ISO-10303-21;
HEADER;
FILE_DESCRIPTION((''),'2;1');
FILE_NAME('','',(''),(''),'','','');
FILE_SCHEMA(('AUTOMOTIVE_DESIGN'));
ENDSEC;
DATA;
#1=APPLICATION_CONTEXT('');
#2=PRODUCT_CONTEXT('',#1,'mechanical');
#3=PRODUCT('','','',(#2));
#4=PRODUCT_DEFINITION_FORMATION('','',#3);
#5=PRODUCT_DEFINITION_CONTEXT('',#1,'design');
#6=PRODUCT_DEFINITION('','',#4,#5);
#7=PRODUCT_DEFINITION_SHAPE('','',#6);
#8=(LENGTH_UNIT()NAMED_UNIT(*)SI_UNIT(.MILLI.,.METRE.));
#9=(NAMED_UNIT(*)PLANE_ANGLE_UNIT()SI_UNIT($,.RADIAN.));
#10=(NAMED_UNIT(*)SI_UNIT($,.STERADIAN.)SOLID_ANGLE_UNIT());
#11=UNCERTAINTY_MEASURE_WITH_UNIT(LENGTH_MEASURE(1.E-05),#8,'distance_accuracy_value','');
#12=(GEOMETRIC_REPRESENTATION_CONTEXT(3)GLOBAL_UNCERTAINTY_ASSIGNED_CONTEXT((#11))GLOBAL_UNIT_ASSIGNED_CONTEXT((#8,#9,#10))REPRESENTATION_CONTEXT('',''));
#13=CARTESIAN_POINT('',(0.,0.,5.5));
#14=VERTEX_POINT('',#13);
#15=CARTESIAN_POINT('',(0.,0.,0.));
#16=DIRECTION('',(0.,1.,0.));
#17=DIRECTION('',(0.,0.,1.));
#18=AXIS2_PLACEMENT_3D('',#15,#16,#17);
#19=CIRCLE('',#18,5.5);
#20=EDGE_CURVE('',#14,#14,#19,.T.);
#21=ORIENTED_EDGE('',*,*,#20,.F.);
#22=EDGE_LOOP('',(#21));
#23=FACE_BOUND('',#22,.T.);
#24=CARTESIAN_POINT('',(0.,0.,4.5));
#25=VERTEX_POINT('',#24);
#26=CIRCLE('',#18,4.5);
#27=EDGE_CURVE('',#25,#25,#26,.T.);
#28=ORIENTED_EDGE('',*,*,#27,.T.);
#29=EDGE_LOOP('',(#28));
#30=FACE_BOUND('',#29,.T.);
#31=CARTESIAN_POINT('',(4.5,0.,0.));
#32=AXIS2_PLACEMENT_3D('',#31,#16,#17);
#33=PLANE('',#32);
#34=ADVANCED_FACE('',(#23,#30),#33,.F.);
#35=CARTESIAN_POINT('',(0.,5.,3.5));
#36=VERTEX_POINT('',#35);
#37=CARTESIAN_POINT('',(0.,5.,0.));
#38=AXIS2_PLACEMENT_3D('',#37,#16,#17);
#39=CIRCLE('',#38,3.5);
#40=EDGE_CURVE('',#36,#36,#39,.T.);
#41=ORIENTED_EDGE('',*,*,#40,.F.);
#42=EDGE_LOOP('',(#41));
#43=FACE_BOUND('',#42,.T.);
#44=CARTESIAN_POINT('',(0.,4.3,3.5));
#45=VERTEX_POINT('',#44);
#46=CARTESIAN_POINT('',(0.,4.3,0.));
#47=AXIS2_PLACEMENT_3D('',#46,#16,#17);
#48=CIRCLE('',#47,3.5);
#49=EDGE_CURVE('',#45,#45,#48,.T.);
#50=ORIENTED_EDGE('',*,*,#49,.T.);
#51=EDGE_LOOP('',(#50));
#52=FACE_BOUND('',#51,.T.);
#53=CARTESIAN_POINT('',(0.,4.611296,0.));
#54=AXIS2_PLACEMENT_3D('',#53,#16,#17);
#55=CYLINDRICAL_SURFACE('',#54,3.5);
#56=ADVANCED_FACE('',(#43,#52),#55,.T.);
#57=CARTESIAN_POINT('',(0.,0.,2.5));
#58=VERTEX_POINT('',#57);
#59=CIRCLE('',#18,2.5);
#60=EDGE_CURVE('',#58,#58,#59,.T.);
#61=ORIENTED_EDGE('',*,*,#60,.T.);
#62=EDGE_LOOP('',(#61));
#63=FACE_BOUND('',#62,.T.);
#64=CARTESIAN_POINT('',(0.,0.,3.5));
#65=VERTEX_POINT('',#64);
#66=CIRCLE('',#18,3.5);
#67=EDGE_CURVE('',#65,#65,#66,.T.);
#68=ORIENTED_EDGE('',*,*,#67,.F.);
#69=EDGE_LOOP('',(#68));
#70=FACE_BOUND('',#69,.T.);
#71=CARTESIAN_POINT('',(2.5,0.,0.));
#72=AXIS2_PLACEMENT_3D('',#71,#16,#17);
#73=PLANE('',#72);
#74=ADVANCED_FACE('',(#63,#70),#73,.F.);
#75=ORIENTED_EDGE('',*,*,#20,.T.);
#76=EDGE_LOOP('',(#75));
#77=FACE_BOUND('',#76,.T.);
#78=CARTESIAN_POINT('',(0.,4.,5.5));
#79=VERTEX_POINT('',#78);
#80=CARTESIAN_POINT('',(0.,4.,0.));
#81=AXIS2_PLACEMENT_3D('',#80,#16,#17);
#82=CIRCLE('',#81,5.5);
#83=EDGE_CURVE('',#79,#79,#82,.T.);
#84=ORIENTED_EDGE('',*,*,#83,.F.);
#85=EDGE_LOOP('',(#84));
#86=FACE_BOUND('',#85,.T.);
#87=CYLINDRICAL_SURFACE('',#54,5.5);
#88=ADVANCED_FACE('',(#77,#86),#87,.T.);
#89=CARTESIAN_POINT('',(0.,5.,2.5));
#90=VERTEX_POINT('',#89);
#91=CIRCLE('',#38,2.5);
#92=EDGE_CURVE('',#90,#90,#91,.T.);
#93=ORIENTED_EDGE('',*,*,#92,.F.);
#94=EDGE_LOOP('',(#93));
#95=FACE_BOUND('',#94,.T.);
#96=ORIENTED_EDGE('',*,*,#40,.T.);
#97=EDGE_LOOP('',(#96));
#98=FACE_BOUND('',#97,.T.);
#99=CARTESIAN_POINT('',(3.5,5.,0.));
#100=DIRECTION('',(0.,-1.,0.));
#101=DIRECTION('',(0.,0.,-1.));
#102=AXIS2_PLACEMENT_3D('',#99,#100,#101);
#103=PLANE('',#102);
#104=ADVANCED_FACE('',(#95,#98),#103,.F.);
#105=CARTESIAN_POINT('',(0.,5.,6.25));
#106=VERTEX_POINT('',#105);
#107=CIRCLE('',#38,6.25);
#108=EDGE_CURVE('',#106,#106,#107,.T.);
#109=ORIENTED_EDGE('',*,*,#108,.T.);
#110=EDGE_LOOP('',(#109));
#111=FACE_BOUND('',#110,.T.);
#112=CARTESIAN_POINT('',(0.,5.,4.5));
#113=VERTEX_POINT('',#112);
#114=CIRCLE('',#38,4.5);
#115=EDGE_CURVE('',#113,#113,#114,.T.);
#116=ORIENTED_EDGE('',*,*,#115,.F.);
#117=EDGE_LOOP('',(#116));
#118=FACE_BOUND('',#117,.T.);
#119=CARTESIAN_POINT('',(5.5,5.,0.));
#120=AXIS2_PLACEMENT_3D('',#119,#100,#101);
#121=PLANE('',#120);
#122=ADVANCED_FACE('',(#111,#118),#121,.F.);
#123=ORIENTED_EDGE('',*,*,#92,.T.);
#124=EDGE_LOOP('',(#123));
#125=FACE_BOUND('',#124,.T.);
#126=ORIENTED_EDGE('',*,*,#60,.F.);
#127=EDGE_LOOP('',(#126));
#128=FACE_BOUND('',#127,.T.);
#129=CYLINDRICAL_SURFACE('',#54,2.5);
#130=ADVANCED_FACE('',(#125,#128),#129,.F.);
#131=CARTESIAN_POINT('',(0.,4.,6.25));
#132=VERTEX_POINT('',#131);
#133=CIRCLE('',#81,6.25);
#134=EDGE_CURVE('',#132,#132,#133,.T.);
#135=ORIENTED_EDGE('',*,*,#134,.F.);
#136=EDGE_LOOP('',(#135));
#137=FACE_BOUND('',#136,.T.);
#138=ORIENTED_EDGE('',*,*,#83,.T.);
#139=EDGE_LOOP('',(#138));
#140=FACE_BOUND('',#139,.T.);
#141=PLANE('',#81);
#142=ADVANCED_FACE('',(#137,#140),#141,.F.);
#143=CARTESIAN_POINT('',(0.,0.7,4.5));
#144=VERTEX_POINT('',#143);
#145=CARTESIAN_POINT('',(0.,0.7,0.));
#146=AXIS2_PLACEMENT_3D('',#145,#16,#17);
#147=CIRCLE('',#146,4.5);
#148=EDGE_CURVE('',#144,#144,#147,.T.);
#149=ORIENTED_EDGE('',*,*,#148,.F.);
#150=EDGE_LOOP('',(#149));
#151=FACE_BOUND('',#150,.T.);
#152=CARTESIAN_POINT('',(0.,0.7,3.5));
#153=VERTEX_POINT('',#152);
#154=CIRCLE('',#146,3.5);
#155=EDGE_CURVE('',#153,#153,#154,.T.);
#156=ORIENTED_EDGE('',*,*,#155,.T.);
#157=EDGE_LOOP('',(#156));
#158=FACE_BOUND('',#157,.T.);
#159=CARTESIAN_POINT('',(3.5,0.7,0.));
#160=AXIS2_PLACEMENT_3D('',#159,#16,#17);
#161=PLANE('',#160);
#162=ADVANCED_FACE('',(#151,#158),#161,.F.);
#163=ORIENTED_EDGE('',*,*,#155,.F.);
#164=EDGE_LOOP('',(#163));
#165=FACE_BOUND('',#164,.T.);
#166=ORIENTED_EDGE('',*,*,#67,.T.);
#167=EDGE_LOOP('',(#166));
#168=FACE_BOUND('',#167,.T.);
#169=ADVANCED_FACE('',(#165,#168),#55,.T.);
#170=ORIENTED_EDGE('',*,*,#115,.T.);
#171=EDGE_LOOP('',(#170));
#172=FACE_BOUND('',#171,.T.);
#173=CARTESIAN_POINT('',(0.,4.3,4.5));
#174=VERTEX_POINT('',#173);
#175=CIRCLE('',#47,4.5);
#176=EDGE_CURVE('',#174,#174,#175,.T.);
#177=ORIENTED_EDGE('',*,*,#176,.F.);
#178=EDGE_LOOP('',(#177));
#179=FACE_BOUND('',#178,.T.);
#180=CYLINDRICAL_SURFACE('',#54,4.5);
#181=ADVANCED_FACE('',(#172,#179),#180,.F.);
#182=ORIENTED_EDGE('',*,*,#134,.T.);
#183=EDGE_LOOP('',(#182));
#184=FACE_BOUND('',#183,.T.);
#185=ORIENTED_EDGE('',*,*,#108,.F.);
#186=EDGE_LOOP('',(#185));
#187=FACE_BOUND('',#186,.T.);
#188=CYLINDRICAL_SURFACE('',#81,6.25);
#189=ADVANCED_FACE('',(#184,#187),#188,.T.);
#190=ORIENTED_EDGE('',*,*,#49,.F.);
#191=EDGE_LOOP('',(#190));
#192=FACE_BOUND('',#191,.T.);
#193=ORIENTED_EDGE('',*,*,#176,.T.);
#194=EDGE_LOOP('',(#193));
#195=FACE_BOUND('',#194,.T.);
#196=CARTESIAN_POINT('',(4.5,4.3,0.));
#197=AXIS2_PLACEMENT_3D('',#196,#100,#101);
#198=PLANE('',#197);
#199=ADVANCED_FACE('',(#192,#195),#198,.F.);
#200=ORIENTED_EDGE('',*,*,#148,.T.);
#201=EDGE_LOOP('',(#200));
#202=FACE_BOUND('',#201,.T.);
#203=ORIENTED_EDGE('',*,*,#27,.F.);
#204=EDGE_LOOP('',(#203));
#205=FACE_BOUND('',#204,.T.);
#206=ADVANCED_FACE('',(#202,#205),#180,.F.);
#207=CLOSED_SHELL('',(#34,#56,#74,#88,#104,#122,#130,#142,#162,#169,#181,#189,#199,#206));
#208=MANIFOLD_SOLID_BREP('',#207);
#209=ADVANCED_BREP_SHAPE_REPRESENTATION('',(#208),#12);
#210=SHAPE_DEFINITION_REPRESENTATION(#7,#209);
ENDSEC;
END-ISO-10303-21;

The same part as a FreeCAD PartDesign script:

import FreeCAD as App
import Part
import Sketcher
Q = App.Units.Quantity

doc = App.newDocument("Part")
body = doc.addObject("PartDesign::Body", "Body")

sketch1 = body.newObject("Sketcher::SketchObject", "Sketch")
sketch1.AttachmentSupport = (doc.getObject("XY_Plane"), [""])
sketch1.MapMode = "FlatFace"
sketch1.addGeometry([
    Part.LineSegment(App.Vector(2.5, 5, 0), App.Vector(2.5, 0, 0)),
    Part.LineSegment(App.Vector(2.5, 0, 0), App.Vector(3.5, 0, 0)),
    Part.LineSegment(App.Vector(3.5, 0, 0), App.Vector(3.5, 0.7, 0)),
    Part.LineSegment(App.Vector(3.5, 0.7, 0), App.Vector(4.5, 0.7, 0)),
    Part.LineSegment(App.Vector(4.5, 0.7, 0), App.Vector(4.5, 0, 0)),
    Part.LineSegment(App.Vector(4.5, 0, 0), App.Vector(5.5, 0, 0)),
    Part.LineSegment(App.Vector(5.5, 0, 0), App.Vector(5.5, 5, 0)),
    Part.LineSegment(App.Vector(5.5, 5, 0), App.Vector(4.5, 5, 0)),
    Part.LineSegment(App.Vector(4.5, 5, 0), App.Vector(4.5, 4.3, 0)),
    Part.LineSegment(App.Vector(4.5, 4.3, 0), App.Vector(3.5, 4.3, 0)),
    Part.LineSegment(App.Vector(3.5, 4.3, 0), App.Vector(3.5, 5, 0)),
    Part.LineSegment(App.Vector(3.5, 5, 0), App.Vector(2.5, 5, 0)),
], False)
sketch1.addConstraint([
    Sketcher.Constraint("Coincident", 0, 2, 1, 1),
    Sketcher.Constraint("Coincident", 1, 2, 2, 1),
    Sketcher.Constraint("Coincident", 2, 2, 3, 1),
    Sketcher.Constraint("Coincident", 3, 2, 4, 1),
    Sketcher.Constraint("Coincident", 4, 2, 5, 1),
    Sketcher.Constraint("Coincident", 5, 2, 6, 1),
    Sketcher.Constraint("Coincident", 6, 2, 7, 1),
    Sketcher.Constraint("Coincident", 7, 2, 8, 1),
    Sketcher.Constraint("Coincident", 8, 2, 9, 1),
    Sketcher.Constraint("Coincident", 9, 2, 10, 1),
    Sketcher.Constraint("Coincident", 10, 2, 11, 1),
    Sketcher.Constraint("Coincident", 11, 2, 0, 1),
    Sketcher.Constraint("Vertical", 0),
    Sketcher.Constraint("Horizontal", 1),
    Sketcher.Constraint("Vertical", 2),
    Sketcher.Constraint("Horizontal", 3),
    Sketcher.Constraint("Vertical", 4),
    Sketcher.Constraint("Horizontal", 5),
    Sketcher.Constraint("Vertical", 6),
    Sketcher.Constraint("Horizontal", 7),
    Sketcher.Constraint("Vertical", 8),
    Sketcher.Constraint("Horizontal", 9),
    Sketcher.Constraint("Vertical", 10),
    Sketcher.Constraint("Horizontal", 11),
    Sketcher.Constraint("PointOnObject", 0, 2, -1),
    Sketcher.Constraint("PointOnObject", 4, 2, -1),
    Sketcher.Constraint("Horizontal", 7, 2, 10, 2),
    Sketcher.Constraint("Vertical", 4, 2, 7, 2),
    Sketcher.Constraint("Vertical", 2, 2, 9, 2),
    Sketcher.Constraint("Equal", 1, 3),
    Sketcher.Constraint("Equal", 3, 5),
    Sketcher.Constraint("Equal", 4, 8),
    Sketcher.Constraint("DistanceX", 1, 1, 1, 2, Q("1 mm")),
    Sketcher.Constraint("DistanceY", 0, 2, 0, 1, Q("5 mm")),
    Sketcher.Constraint("DistanceY", 2, 1, 2, 2, Q("0.7 mm")),
    Sketcher.Constraint("DistanceX", -1, 1, 0, 2, Q("2.5 mm")),
])
revolution = body.newObject("PartDesign::Revolution", "Revolution")
revolution.Profile = sketch1
revolution.ReferenceAxis = (sketch1, ["V_Axis"])
revolution.Angle = 360

sketch2 = body.newObject("Sketcher::SketchObject", "Sketch001")
sketch2.AttachmentSupport = (doc.getObject("XZ_Plane"), [""])
sketch2.MapMode = "FlatFace"
sketch2.AttachmentOffset = App.Placement(App.Vector(0, 0, -5), App.Rotation())
sketch2.addGeometry([
    Part.Circle(App.Vector(0, 0, 0), App.Vector(0, 0, 1), 6.25),
    Part.Circle(App.Vector(0, 0, 0), App.Vector(0, 0, 1), 5.5),
], False)
sketch2.addConstraint([
    Sketcher.Constraint("Coincident", 0, 3, -1, 1),
    Sketcher.Constraint("Coincident", 1, 3, -1, 1),
    Sketcher.Constraint("Diameter", 1, Q("11 mm")),
    Sketcher.Constraint("Diameter", 0, Q("12.5 mm")),
])
pad1 = body.newObject("PartDesign::Pad", "Pad")
pad1.Profile = sketch2
pad1.Length = 1

doc.recompute()
